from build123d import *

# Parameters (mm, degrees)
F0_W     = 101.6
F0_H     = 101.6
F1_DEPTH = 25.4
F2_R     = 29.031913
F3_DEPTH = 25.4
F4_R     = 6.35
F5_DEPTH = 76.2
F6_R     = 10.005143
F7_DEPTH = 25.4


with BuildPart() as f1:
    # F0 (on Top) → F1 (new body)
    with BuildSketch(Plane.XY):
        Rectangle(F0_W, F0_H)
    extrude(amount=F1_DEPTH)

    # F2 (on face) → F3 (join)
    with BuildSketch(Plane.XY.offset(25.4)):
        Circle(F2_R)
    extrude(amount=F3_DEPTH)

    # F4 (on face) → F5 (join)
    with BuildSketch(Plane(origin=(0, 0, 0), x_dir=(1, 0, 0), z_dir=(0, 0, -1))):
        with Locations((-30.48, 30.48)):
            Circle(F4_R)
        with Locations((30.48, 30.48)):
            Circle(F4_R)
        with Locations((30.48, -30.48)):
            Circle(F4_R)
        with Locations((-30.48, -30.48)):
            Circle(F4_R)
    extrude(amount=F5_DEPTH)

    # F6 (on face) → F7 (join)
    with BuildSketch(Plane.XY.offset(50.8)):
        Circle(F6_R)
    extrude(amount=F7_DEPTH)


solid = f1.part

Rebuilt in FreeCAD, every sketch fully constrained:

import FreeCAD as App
import Part
import Sketcher
from FreeCAD import Vector
Q = App.Units.Quantity


def add_polygon(sketch, points):
    """Adds a closed chain of lines whose ends are joined by coincident constraints."""
    first, n = sketch.GeometryCount, len(points)
    for a, b in zip(points, points[1:] + points[:1]):
        sketch.addGeometry(Part.LineSegment(App.Vector(*a, 0), App.Vector(*b, 0)), False)
    for i in range(n):
        sketch.addConstraint(Sketcher.Constraint("Coincident", first + i, 2, first + (i + 1) % n, 1))

doc = App.newDocument("Part")
body = doc.addObject("PartDesign::Body", "Body")

sketch1 = doc.addObject("Sketcher::SketchObject", "Sketch")
body.addObject(sketch1)
sketch1.AttachmentSupport = (doc.XY_Plane, [""])
sketch1.MapMode = "FlatFace"
add_polygon(sketch1, [(-51, 51), (-51, -51), (51, -51), (51, 51)])
sketch1.addConstraint(Sketcher.Constraint("Vertical", 0))
sketch1.addConstraint(Sketcher.Constraint("Horizontal", 1))
sketch1.addConstraint(Sketcher.Constraint("Vertical", 2))
sketch1.addConstraint(Sketcher.Constraint("Horizontal", 3))
sketch1.addConstraint(Sketcher.Constraint("Symmetric", 0, 2, 2, 2, -1, 1))
sketch1.addConstraint(Sketcher.Constraint("Equal", 3, 0))
sketch1.addConstraint(Sketcher.Constraint("DistanceX", 1, 1, 1, 2, Q("4 in")))
pad1 = doc.addObject("PartDesign::Pad", "Pad")
body.addObject(pad1)
pad1.Profile = sketch1
pad1.Length = Q("1 in")

sketch2 = doc.addObject("Sketcher::SketchObject", "Sketch001")
body.addObject(sketch2)
sketch2.AttachmentSupport = (doc.XY_Plane, [""])
sketch2.MapMode = "FlatFace"
sketch2.AttachmentOffset = App.Placement(Vector(0, 0, 1 * 25.4), App.Rotation())
sketch2.addGeometry(Part.Circle(Vector(0, 0, 0), Vector(0, 0, 1), 29), False)
sketch2.addConstraint(Sketcher.Constraint("Coincident", 0, 3, -1, 1))
sketch2.addConstraint(Sketcher.Constraint("Diameter", 0, Q("58.063826 mm")))
pad2 = doc.addObject("PartDesign::Pad", "Pad001")
body.addObject(pad2)
pad2.Profile = sketch2
pad2.Length = Q("1 in")

sketch3 = doc.addObject("Sketcher::SketchObject", "Sketch002")
body.addObject(sketch3)
sketch3.AttachmentSupport = (doc.XY_Plane, [""])
sketch3.MapMode = "FlatFace"
sketch3.addGeometry(Part.Circle(Vector(-30, -30, 0), Vector(0, 0, 1), 6), False)
sketch3.addGeometry(Part.Circle(Vector(30, -30, 0), Vector(0, 0, 1), 6), False)
sketch3.addGeometry(Part.Circle(Vector(30, 30, 0), Vector(0, 0, 1), 6), False)
sketch3.addGeometry(Part.Circle(Vector(-30, 30, 0), Vector(0, 0, 1), 6), False)
sketch3.addConstraint(Sketcher.Constraint("Equal", 0, 1))
sketch3.addConstraint(Sketcher.Constraint("Equal", 1, 2))
sketch3.addConstraint(Sketcher.Constraint("Equal", 2, 3))
sketch3.addConstraint(Sketcher.Constraint("Symmetric", 0, 3, 2, 3, -1, 1))
sketch3.addConstraint(Sketcher.Constraint("Symmetric", 1, 3, 3, 3, -1, 1))
sketch3.addConstraint(Sketcher.Constraint("Symmetric", 0, 3, 1, 3, -2))
sketch3.addConstraint(Sketcher.Constraint("Diameter", 0, Q("0.5 in")))
sketch3.addConstraint(Sketcher.Constraint("DistanceX", 0, 3, -1, 1, Q("1.2 in")))
sketch3.addConstraint(Sketcher.Constraint("DistanceY", 0, 3, -1, 1, Q("1.2 in")))
pad3 = doc.addObject("PartDesign::Pad", "Pad002")
body.addObject(pad3)
pad3.Profile = sketch3
pad3.Length = Q("3 in")
pad3.Reversed = True

sketch4 = doc.addObject("Sketcher::SketchObject", "Sketch003")
body.addObject(sketch4)
sketch4.AttachmentSupport = (doc.XY_Plane, [""])
sketch4.MapMode = "FlatFace"
sketch4.AttachmentOffset = App.Placement(Vector(0, 0, 2 * 25.4), App.Rotation())
sketch4.addGeometry(Part.Circle(Vector(0, 0, 0), Vector(0, 0, 1), 10), False)
sketch4.addConstraint(Sketcher.Constraint("Coincident", 0, 3, -1, 1))
sketch4.addConstraint(Sketcher.Constraint("Diameter", 0, Q("20.010286 mm")))
pad4 = doc.addObject("PartDesign::Pad", "Pad003")
body.addObject(pad4)
pad4.Profile = sketch4
pad4.Length = Q("1 in")

doc.recompute()
